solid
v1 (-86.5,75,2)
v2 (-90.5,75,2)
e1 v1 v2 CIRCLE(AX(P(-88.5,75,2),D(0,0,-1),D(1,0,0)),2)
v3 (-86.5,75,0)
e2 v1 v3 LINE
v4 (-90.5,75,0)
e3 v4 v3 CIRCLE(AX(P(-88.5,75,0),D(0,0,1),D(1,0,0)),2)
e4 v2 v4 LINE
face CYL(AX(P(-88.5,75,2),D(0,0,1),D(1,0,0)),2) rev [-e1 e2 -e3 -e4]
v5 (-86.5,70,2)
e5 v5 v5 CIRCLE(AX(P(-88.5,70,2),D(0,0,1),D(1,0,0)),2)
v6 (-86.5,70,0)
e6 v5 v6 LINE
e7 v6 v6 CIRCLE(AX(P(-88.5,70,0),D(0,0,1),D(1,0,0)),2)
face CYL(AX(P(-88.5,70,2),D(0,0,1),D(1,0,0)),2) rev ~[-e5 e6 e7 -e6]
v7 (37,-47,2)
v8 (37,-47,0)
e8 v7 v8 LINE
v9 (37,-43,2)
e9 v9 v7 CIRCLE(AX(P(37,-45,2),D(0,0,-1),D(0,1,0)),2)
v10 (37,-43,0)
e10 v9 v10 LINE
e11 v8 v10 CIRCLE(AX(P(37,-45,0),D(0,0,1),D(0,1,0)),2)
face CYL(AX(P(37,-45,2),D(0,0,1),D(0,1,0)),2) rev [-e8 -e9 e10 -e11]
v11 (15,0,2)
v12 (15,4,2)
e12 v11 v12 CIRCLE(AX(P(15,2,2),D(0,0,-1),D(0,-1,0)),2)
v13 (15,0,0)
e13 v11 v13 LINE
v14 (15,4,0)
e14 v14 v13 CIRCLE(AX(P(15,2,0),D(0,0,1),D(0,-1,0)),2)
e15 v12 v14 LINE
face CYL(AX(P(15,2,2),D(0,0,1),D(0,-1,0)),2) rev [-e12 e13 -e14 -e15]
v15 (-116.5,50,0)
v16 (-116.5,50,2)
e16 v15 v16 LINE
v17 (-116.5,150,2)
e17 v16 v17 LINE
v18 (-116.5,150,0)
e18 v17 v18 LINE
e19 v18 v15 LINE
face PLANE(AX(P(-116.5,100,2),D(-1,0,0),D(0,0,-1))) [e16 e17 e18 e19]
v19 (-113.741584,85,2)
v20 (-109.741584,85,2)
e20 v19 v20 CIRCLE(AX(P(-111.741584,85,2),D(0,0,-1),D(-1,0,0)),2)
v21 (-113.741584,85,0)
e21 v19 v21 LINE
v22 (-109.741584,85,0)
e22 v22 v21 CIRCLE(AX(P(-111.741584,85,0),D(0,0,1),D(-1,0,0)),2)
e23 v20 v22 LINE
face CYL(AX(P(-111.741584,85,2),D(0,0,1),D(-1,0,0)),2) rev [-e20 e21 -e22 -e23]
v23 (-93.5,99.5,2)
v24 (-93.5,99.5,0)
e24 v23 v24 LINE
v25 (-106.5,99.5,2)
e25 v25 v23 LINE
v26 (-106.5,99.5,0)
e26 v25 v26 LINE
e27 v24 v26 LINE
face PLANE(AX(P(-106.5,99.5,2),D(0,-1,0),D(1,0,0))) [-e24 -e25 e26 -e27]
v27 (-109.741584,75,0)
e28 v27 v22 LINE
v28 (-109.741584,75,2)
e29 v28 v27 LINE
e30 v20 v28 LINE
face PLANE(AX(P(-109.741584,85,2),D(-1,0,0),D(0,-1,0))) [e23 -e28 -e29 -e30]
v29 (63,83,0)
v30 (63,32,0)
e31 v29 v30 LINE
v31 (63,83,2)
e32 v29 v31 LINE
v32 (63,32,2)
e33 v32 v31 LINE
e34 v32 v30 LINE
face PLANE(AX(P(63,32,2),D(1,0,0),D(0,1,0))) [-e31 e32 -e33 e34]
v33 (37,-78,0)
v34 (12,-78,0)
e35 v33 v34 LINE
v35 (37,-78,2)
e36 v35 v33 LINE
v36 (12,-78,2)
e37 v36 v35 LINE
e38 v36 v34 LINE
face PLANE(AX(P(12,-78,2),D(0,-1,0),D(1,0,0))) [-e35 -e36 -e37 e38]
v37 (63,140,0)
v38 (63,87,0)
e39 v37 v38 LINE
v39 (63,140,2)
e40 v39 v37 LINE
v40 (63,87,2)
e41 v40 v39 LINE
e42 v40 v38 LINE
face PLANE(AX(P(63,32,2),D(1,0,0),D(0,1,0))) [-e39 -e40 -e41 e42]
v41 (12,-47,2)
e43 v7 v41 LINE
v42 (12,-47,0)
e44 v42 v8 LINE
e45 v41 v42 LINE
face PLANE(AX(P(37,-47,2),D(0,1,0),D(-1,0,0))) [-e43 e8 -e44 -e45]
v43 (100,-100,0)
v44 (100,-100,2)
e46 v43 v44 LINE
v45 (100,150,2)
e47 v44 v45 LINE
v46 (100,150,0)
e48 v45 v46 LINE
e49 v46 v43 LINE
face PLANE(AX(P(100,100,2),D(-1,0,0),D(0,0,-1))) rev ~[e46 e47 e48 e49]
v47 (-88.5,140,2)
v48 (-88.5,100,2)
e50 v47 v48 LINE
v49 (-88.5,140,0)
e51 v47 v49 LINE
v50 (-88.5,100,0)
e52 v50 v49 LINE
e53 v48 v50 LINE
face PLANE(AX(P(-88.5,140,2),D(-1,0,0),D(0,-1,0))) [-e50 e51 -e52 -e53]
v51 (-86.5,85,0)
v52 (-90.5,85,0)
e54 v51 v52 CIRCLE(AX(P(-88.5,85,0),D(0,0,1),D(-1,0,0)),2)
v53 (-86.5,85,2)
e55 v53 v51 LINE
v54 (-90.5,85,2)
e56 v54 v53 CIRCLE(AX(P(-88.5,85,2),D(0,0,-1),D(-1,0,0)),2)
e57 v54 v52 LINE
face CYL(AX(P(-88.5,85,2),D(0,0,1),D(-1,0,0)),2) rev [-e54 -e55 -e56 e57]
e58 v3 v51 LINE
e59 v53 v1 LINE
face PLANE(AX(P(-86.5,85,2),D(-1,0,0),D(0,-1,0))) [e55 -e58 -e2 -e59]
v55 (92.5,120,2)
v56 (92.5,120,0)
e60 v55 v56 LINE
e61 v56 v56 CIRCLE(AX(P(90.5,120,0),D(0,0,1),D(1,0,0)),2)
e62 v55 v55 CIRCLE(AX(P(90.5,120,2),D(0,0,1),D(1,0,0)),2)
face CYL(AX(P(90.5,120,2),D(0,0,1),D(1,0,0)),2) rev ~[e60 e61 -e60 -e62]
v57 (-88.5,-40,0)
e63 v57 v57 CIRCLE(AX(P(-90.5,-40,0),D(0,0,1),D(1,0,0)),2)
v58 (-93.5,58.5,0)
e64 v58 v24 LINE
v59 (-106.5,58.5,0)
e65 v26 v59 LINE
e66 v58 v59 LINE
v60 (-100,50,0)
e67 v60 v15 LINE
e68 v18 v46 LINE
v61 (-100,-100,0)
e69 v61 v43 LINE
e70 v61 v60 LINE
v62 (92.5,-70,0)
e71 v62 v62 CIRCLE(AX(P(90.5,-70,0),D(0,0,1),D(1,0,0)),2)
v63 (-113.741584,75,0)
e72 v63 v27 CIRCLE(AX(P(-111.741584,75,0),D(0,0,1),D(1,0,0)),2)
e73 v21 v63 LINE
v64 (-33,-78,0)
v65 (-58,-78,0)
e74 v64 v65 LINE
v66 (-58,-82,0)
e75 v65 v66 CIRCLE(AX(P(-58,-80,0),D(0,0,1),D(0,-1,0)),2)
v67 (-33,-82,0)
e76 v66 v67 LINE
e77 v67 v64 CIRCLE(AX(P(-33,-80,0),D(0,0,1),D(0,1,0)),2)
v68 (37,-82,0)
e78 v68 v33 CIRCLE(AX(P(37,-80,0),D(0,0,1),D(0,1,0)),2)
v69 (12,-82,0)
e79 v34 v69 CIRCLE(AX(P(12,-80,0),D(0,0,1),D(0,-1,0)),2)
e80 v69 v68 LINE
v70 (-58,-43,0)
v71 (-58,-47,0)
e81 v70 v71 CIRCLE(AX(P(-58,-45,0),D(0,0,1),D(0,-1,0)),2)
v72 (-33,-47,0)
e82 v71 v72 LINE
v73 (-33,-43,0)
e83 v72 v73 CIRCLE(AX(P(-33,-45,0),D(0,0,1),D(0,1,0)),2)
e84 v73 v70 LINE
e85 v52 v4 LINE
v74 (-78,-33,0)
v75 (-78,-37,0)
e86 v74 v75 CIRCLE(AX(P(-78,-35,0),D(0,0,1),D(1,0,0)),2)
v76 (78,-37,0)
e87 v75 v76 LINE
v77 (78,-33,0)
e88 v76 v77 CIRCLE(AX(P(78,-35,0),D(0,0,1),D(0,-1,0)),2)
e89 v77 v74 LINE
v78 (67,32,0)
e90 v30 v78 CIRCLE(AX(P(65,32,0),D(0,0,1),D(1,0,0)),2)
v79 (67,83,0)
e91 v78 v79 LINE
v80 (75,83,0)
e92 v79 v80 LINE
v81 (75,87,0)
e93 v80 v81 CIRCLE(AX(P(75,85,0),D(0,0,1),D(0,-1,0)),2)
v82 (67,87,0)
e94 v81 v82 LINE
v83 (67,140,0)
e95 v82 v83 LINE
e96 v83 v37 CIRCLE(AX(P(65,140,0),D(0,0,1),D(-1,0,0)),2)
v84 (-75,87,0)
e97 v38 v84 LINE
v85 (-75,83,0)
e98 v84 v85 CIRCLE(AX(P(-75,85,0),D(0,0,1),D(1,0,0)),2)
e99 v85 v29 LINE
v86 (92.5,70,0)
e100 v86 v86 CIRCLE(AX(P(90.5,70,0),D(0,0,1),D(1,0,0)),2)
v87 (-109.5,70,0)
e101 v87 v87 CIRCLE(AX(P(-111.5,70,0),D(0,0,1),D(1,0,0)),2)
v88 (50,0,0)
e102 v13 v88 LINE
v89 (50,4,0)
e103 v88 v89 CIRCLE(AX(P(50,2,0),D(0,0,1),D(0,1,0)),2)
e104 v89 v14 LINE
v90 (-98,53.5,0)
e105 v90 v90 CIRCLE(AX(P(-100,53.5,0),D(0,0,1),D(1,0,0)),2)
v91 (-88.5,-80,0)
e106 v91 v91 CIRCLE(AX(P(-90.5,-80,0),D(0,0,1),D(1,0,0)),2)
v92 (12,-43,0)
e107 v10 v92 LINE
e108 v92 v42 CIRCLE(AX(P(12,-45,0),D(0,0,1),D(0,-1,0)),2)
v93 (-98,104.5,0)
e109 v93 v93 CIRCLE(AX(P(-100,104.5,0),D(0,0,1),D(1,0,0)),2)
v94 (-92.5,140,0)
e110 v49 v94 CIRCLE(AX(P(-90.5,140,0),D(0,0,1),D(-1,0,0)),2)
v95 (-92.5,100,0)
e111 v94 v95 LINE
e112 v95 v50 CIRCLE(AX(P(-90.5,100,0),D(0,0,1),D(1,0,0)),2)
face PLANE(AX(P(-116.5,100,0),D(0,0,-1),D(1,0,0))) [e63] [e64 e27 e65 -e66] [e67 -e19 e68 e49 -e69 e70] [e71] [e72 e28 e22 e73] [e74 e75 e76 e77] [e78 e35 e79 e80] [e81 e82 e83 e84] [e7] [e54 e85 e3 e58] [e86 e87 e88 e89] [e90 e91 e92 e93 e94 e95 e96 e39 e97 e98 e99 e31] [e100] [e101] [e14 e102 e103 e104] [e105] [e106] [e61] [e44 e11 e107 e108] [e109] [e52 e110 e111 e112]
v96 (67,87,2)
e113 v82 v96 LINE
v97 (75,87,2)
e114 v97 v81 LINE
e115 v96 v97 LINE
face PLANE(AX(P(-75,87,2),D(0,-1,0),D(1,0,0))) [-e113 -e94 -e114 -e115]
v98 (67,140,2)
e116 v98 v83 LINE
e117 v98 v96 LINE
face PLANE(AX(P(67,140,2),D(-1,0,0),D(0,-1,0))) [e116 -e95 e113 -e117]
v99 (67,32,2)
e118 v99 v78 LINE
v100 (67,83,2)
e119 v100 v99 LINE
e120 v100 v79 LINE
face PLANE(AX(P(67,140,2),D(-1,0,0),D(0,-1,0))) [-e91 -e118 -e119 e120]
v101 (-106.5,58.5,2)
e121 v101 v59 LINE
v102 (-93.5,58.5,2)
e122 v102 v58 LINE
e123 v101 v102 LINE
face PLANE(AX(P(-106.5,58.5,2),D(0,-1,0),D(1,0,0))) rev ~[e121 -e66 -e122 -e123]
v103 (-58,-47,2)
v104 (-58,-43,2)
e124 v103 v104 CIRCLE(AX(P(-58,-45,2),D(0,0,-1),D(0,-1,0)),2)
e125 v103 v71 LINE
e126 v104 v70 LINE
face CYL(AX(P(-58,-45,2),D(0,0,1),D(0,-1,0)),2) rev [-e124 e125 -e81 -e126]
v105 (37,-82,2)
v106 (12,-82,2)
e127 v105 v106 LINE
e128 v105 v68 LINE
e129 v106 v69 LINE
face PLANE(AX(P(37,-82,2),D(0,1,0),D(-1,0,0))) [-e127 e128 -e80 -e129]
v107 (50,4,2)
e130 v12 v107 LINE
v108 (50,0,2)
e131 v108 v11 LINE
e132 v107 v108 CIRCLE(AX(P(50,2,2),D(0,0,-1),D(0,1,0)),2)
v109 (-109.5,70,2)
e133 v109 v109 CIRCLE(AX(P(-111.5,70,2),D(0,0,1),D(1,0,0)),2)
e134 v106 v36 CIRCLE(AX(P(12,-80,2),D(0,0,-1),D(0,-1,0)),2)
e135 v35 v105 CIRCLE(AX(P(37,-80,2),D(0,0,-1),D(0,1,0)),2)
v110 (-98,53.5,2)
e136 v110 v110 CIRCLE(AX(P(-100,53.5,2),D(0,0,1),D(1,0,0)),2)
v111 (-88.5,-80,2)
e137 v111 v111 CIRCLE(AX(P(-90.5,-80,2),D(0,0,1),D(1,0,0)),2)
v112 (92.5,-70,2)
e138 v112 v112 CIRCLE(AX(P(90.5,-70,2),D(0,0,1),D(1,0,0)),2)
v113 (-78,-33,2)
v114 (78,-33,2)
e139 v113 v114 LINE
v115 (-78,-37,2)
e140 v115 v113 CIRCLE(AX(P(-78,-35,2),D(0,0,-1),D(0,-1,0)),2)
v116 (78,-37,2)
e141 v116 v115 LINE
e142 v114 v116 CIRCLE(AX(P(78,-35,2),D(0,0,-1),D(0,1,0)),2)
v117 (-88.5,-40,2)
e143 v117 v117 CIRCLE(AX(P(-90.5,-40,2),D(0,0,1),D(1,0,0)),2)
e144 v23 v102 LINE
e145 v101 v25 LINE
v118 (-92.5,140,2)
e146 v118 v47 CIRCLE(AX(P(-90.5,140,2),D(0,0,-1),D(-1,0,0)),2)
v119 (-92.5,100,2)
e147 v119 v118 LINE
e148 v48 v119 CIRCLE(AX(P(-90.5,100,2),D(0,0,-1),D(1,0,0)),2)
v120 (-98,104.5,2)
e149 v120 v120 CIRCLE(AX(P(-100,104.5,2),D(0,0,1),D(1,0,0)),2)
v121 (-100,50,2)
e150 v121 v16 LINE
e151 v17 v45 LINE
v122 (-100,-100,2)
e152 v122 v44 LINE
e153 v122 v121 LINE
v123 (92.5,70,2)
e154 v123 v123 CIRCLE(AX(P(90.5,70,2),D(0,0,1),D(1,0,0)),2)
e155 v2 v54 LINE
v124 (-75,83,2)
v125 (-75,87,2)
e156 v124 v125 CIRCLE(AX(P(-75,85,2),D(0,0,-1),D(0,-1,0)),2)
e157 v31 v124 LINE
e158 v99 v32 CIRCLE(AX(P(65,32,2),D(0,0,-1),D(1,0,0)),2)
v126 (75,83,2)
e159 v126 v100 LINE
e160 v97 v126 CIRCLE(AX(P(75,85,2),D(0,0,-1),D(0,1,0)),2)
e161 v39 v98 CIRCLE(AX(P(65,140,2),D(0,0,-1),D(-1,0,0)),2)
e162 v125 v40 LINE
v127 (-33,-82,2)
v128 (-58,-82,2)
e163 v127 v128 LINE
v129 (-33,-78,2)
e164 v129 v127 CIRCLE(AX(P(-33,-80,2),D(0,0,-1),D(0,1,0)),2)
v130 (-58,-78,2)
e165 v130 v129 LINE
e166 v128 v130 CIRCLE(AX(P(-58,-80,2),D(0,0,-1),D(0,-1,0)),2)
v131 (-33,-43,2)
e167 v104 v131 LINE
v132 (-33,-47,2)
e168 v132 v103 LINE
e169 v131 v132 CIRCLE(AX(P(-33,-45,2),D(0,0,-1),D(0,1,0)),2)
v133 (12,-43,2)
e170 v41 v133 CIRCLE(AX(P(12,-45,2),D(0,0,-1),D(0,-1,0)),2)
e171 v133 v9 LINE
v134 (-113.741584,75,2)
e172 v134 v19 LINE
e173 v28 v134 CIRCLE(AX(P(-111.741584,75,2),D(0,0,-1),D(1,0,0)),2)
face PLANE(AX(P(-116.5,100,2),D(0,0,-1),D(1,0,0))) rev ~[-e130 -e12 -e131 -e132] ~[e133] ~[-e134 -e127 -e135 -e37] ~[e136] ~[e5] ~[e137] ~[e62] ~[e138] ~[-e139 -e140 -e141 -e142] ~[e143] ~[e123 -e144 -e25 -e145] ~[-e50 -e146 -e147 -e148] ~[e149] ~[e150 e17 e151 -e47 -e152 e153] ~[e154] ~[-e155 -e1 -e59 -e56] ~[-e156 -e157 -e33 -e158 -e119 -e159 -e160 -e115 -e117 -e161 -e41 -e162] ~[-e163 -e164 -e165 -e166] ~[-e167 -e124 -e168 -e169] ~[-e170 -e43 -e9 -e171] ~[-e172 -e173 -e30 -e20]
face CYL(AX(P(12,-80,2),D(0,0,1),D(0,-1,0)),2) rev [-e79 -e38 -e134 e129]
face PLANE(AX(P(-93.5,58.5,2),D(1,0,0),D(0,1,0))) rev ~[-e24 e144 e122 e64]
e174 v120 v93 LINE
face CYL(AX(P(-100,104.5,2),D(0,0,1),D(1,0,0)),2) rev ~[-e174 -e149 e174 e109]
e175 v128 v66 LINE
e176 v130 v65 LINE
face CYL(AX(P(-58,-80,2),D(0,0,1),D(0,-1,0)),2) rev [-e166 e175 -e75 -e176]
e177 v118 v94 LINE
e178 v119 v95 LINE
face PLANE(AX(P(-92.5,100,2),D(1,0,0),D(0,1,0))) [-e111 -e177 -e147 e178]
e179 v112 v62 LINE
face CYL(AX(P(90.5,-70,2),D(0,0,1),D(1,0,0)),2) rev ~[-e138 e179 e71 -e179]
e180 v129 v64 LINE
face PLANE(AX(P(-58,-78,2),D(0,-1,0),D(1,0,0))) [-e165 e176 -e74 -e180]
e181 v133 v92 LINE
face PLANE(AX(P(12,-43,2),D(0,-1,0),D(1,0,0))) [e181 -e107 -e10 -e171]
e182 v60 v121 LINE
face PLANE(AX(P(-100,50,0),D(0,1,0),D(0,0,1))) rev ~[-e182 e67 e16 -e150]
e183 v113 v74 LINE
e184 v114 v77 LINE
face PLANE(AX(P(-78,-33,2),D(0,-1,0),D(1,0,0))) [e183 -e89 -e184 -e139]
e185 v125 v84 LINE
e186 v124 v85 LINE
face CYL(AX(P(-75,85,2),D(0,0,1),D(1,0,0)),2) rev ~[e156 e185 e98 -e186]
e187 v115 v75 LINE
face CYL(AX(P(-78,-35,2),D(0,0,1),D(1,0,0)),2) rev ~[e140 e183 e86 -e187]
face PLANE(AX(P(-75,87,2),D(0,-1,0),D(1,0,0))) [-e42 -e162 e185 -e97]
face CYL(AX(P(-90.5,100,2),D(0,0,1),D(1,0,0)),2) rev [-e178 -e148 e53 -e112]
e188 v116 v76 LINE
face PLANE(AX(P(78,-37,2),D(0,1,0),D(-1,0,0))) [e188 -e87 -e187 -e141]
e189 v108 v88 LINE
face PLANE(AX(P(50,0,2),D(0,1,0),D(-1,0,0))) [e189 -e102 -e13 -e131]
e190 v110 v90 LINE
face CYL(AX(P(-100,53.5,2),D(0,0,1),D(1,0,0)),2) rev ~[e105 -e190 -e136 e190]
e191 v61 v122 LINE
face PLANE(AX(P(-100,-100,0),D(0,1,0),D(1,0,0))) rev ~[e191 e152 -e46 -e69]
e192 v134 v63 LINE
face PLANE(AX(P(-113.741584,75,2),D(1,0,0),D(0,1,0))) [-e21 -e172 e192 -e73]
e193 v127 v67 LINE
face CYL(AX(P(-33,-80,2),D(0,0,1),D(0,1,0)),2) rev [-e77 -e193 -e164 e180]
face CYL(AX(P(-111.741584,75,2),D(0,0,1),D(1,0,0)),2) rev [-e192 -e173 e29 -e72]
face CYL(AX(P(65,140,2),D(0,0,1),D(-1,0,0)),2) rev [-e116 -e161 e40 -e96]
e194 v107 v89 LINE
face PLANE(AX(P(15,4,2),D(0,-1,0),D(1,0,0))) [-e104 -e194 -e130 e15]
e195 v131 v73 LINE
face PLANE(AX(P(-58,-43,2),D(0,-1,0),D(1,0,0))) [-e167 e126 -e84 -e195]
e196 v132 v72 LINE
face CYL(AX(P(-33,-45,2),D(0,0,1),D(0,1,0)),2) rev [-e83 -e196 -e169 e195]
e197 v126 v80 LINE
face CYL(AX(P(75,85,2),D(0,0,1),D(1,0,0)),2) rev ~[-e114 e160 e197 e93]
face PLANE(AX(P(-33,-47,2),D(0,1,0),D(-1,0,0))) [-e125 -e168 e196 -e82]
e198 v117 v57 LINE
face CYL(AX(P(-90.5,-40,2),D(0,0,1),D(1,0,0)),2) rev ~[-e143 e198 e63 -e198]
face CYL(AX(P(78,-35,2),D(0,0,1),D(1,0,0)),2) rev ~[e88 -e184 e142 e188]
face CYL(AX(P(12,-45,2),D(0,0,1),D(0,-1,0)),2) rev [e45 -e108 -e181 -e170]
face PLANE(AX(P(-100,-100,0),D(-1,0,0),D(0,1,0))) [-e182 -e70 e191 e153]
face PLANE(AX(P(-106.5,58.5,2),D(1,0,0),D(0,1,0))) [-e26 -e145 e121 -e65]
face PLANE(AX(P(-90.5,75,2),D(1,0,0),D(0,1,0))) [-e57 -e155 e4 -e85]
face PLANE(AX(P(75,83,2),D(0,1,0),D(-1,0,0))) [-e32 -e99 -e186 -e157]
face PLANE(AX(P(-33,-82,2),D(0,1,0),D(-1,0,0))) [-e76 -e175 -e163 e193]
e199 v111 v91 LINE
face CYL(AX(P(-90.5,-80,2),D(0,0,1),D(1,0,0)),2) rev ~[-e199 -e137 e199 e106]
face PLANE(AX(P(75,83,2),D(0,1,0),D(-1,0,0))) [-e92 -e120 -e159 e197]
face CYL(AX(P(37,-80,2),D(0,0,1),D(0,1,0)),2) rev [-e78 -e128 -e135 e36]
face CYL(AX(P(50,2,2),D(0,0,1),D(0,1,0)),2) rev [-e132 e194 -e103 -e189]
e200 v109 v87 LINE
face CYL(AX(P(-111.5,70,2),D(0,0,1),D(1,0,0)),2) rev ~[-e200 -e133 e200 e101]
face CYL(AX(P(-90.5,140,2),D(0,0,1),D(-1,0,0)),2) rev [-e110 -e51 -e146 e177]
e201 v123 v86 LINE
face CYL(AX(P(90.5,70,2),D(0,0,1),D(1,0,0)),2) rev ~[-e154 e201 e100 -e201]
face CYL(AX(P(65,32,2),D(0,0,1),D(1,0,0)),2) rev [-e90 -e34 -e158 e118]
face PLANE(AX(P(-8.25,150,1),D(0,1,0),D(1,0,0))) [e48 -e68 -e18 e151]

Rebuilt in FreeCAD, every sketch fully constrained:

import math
import FreeCAD as App
import Part
import Sketcher
from FreeCAD import Vector
Q = App.Units.Quantity

doc = App.newDocument("Part")
body = doc.addObject("PartDesign::Body", "Body")

# Sketch on XY plane
sketch1 = doc.addObject("Sketcher::SketchObject", "Sketch")
body.addObject(sketch1)
sketch1.AttachmentSupport = (doc.XY_Plane, [""])
sketch1.MapMode = "FlatFace"
sketch1.addGeometry([
    Part.LineSegment(Vector(-100, 100, 0), Vector(-100, -100, 0)),
    Part.LineSegment(Vector(-100, -100, 0), Vector(100, -100, 0)),
    Part.LineSegment(Vector(100, -100, 0), Vector(100, 100, 0)),
    Part.LineSegment(Vector(100, 100, 0), Vector(-100, 100, 0)),
], False)
sketch1.addConstraint([
    Sketcher.Constraint("Coincident", 0, 2, 1, 1),
    Sketcher.Constraint("Coincident", 1, 2, 2, 1),
    Sketcher.Constraint("Coincident", 2, 2, 3, 1),
    Sketcher.Constraint("Coincident", 3, 2, 0, 1),
    Sketcher.Constraint("Vertical", 0),
    Sketcher.Constraint("Horizontal", 1),
    Sketcher.Constraint("Vertical", 2),
    Sketcher.Constraint("Horizontal", 3),
    Sketcher.Constraint("Symmetric", 0, 2, 2, 2, -1, 1),
    Sketcher.Constraint("Equal", 3, 0),
    Sketcher.Constraint("DistanceX", 1, 1, 1, 2, Q("200 mm")),
])
pad1 = doc.addObject("PartDesign::Pad", "Pad")
body.addObject(pad1)
pad1.Profile = sketch1
pad1.Length = 2

# Sketch on XY plane
sketch2 = doc.addObject("Sketcher::SketchObject", "Sketch001")
body.addObject(sketch2)
sketch2.AttachmentSupport = (doc.XY_Plane, [""])
sketch2.MapMode = "FlatFace"
sketch2.AttachmentOffset = App.Placement(Vector(0, 0, 2), App.Rotation())
sketch2.addGeometry([
    Part.Circle(Vector(90.5, 70, 0), Vector(0, 0, 1), 2),
    Part.Circle(Vector(90.5, -70, 0), Vector(0, 0, 1), 2),
], False)
sketch2.addConstraint([
    Sketcher.Constraint("Equal", 0, 1),
    Sketcher.Constraint("Symmetric", 0, 3, 1, 3, -1),
    Sketcher.Constraint("Diameter", 0, Q("4 mm")),
    Sketcher.Constraint("DistanceY", -1, 1, 0, 3, Q("70 mm")),
    Sketcher.Constraint("DistanceX", -1, 1, 0, 3, Q("90.5 mm")),
])
pocket1 = doc.addObject("PartDesign::Pocket", "Pocket")
body.addObject(pocket1)
pocket1.Profile = sketch2
pocket1.Length = 13

# Sketch on XY plane
sketch3 = doc.addObject("Sketcher::SketchObject", "Sketch002")
body.addObject(sketch3)
sketch3.AttachmentSupport = (doc.XY_Plane, [""])
sketch3.MapMode = "FlatFace"
sketch3.AttachmentOffset = App.Placement(Vector(0, 0, 2), App.Rotation())
sketch3.addGeometry([
    Part.Circle(Vector(-90.5, -40, 0), Vector(0, 0, 1), 2),
    Part.Circle(Vector(-90.5, -80, 0), Vector(0, 0, 1), 2),
], False)
sketch3.addConstraint([
    Sketcher.Constraint("Equal", 0, 1),
    Sketcher.Constraint("Vertical", 0, 3, 1, 3),
    Sketcher.Constraint("Diameter", 0, Q("4 mm")),
    Sketcher.Constraint("DistanceY", 0, 3, -1, 1, Q("40 mm")),
    Sketcher.Constraint("DistanceY", 1, 3, -1, 1, Q("80 mm")),
    Sketcher.Constraint("DistanceX", 0, 3, -1, 1, Q("90.5 mm")),
])
pocket2 = doc.addObject("PartDesign::Pocket", "Pocket001")
body.addObject(pocket2)
pocket2.Profile = sketch3
pocket2.Type = "ThroughAll"

# Sketch on XY plane
sketch4 = doc.addObject("Sketcher::SketchObject", "Sketch003")
body.addObject(sketch4)
sketch4.AttachmentSupport = (doc.XY_Plane, [""])
sketch4.MapMode = "FlatFace"
sketch4.AttachmentOffset = App.Placement(Vector(0, 0, 2), App.Rotation())
sketch4.addGeometry([
    Part.Circle(Vector(-50, -45, 0), Vector(0, 0, 1), 2),
    Part.Circle(Vector(-50, -80, 0), Vector(0, 0, 1), 2),
    Part.Circle(Vector(26.5, -45, 0), Vector(0, 0, 1), 2),
    Part.Circle(Vector(26.5, -80, 0), Vector(0, 0, 1), 2),
], False)
sketch4.addConstraint([
    Sketcher.Constraint("Equal", 0, 1),
    Sketcher.Constraint("Equal", 1, 2),
    Sketcher.Constraint("Equal", 2, 3),
    Sketcher.Constraint("Horizontal", 0, 3, 2, 3),
    Sketcher.Constraint("Horizontal", 1, 3, 3, 3),
    Sketcher.Constraint("Vertical", 0, 3, 1, 3),
    Sketcher.Constraint("Vertical", 2, 3, 3, 3),
    Sketcher.Constraint("Diameter", 0, Q("4 mm")),
    Sketcher.Constraint("DistanceX", 0, 3, -1, 1, Q("50 mm")),
    Sketcher.Constraint("DistanceY", 0, 3, -1, 1, Q("45 mm")),
    Sketcher.Constraint("DistanceY", 1, 3, -1, 1, Q("80 mm")),
    Sketcher.Constraint("DistanceX", -1, 1, 2, 3, Q("26.5 mm")),
])
pocket3 = doc.addObject("PartDesign::Pocket", "Pocket002")
body.addObject(pocket3)
pocket3.Profile = sketch4
pocket3.Length = 13

# Sketch on YZ plane
sketch5 = doc.addObject("Sketcher::SketchObject", "Sketch004")
body.addObject(sketch5)
sketch5.AttachmentSupport = (doc.YZ_Plane, [""])
sketch5.MapMode = "FlatFace"
sketch5.AttachmentOffset = App.Placement(Vector(0, 0, -100), App.Rotation())
sketch5.addGeometry([
    Part.LineSegment(Vector(100, 0, 0), Vector(50, 0, 0)),
    Part.LineSegment(Vector(50, 0, 0), Vector(50, 2, 0)),
    Part.LineSegment(Vector(50, 2, 0), Vector(100, 2, 0)),
    Part.LineSegment(Vector(100, 2, 0), Vector(100, 0, 0)),
], False)
sketch5.addConstraint([
    Sketcher.Constraint("Coincident", 0, 2, 1, 1),
    Sketcher.Constraint("Coincident", 1, 2, 2, 1),
    Sketcher.Constraint("Coincident", 2, 2, 3, 1),
    Sketcher.Constraint("Coincident", 3, 2, 0, 1),
    Sketcher.Constraint("Horizontal", 0),
    Sketcher.Constraint("Vertical", 1),
    Sketcher.Constraint("Horizontal", 2),
    Sketcher.Constraint("Vertical", 3),
    Sketcher.Constraint("PointOnObject", 0, 2, -1),
    Sketcher.Constraint("DistanceX", 0, 2, 0, 1, Q("50 mm")),
    Sketcher.Constraint("DistanceY", 1, 1, 1, 2, Q("2 mm")),
    Sketcher.Constraint("DistanceX", -1, 1, 0, 2, Q("50 mm")),
])
pad2 = doc.addObject("PartDesign::Pad", "Pad001")
body.addObject(pad2)
pad2.Profile = sketch5
pad2.Length = 16.5
pad2.Reversed = True

# Sketch on XY plane
sketch6 = doc.addObject("Sketcher::SketchObject", "Sketch005")
body.addObject(sketch6)
sketch6.AttachmentSupport = (doc.XY_Plane, [""])
sketch6.MapMode = "FlatFace"
sketch6.AttachmentOffset = App.Placement(Vector(0, 0, 2), App.Rotation())
sketch6.addGeometry([
    Part.Circle(Vector(-111.5, 70, 0), Vector(0, 0, 1), 2),  # 0
    Part.Circle(Vector(-88.5, 70, 0), Vector(0, 0, 1), 2),  # 1
    Part.LineSegment(Vector(-106.5, 73.5, 0), Vector(-106.5, 58.5, 0)),  # 2
    Part.LineSegment(Vector(-106.5, 58.5, 0), Vector(-93.5, 58.5, 0)),  # 3
    Part.LineSegment(Vector(-93.5, 58.5, 0), Vector(-93.5, 73.5, 0)),  # 4
    Part.LineSegment(Vector(-93.5, 73.5, 0), Vector(-106.5, 73.5, 0)),  # 5
], False)
sketch6.addConstraint([
    Sketcher.Constraint("Coincident", 2, 2, 3, 1),
    Sketcher.Constraint("Coincident", 3, 2, 4, 1),
    Sketcher.Constraint("Coincident", 4, 2, 5, 1),
    Sketcher.Constraint("Coincident", 5, 2, 2, 1),
    Sketcher.Constraint("Vertical", 2),
    Sketcher.Constraint("Horizontal", 3),
    Sketcher.Constraint("Vertical", 4),
    Sketcher.Constraint("Horizontal", 5),
    Sketcher.Constraint("Equal", 0, 1),
    Sketcher.Constraint("Horizontal", 0, 3, 1, 3),
    Sketcher.Constraint("Diameter", 0, Q("4 mm")),
    Sketcher.Constraint("DistanceX", 3, 1, 3, 2, Q("13 mm")),
    Sketcher.Constraint("DistanceY", 2, 2, 2, 1, Q("15 mm")),
    Sketcher.Constraint("DistanceY", -1, 1, 0, 3, Q("70 mm")),
    Sketcher.Constraint("DistanceX", 0, 3, 1, 3, Q("23 mm")),
    Sketcher.Constraint("DistanceX", 0, 3, 2, 2, Q("5 mm")),
    Sketcher.Constraint("DistanceX", 0, 3, -1, 1, Q("111.5 mm")),
    Sketcher.Constraint("DistanceY", -1, 1, 2, 2, Q("58.5 mm")),
])
pocket4 = doc.addObject("PartDesign::Pocket", "Pocket003")
body.addObject(pocket4)
pocket4.Profile = sketch6
pocket4.Type = "ThroughAll"

# Sketch on XY plane
sketch7 = doc.addObject("Sketcher::SketchObject", "Sketch006")
body.addObject(sketch7)
sketch7.AttachmentSupport = (doc.XY_Plane, [""])
sketch7.MapMode = "FlatFace"
sketch7.AttachmentOffset = App.Placement(Vector(0, 0, 2), App.Rotation())
sketch7.addGeometry([
    Part.Circle(Vector(75, 85, 0), Vector(0, 0, 1), 2),
    Part.Circle(Vector(78, -35, 0), Vector(0, 0, 1), 2),
    Part.Circle(Vector(-78, -35, 0), Vector(0, 0, 1), 2),
    Part.Circle(Vector(-75, 85, 0), Vector(0, 0, 1), 2),
], False)
sketch7.addConstraint([
    Sketcher.Constraint("Equal", 0, 1),
    Sketcher.Constraint("Equal", 1, 2),
    Sketcher.Constraint("Equal", 2, 3),
    Sketcher.Constraint("Symmetric", 1, 3, 2, 3, -2),
    Sketcher.Constraint("Symmetric", 0, 3, 3, 3, -2),
    Sketcher.Constraint("Diameter", 0, Q("4 mm")),
    Sketcher.Constraint("DistanceX", -1, 1, 0, 3, Q("75 mm")),
    Sketcher.Constraint("DistanceY", -1, 1, 0, 3, Q("85 mm")),
    Sketcher.Constraint("DistanceX", -1, 1, 1, 3, Q("78 mm")),
    Sketcher.Constraint("DistanceY", 1, 3, -1, 1, Q("35 mm")),
])
pocket5 = doc.addObject("PartDesign::Pocket", "Pocket004")
body.addObject(pocket5)
pocket5.Profile = sketch7
pocket5.Type = "ThroughAll"

# Sketch on XY plane
sketch8 = doc.addObject("Sketcher::SketchObject", "Sketch007")
body.addObject(sketch8)
sketch8.AttachmentSupport = (doc.XY_Plane, [""])
sketch8.MapMode = "FlatFace"
sketch8.AttachmentOffset = App.Placement(Vector(0, 0, 2), App.Rotation())
sketch8.addGeometry([
    Part.LineSegment(Vector(67, 32, 0), Vector(67, 95, 0)),
    Part.ArcOfCircle(Part.Circle(Vector(65, 95, 0), Vector(0, 0, 1), 2), math.radians(0), math.radians(180)),
    Part.LineSegment(Vector(63, 95, 0), Vector(63, 32, 0)),
    Part.ArcOfCircle(Part.Circle(Vector(65, 32, 0), Vector(0, 0, 1), 2), math.radians(180), math.radians(360)),
], False)
sketch8.addConstraint([
    Sketcher.Constraint("Tangent", 0, 2, 1, 1),
    Sketcher.Constraint("Tangent", 1, 2, 2, 1),
    Sketcher.Constraint("Tangent", 2, 2, 3, 1),
    Sketcher.Constraint("Tangent", 3, 2, 0, 1),
    Sketcher.Constraint("Vertical", 0),
    Sketcher.Constraint("Vertical", 2),
    Sketcher.Constraint("Radius", 1, Q("2 mm")),
    Sketcher.Constraint("DistanceY", 0, 1, 0, 2, Q("63 mm")),
    Sketcher.Constraint("DistanceX", -1, 1, 1, 3, Q("65 mm")),
    Sketcher.Constraint("DistanceY", -1, 1, 1, 3, Q("95 mm")),
])
pocket6 = doc.addObject("PartDesign::Pocket", "Pocket005")
body.addObject(pocket6)
pocket6.Profile = sketch8
pocket6.Length = 10

# Sketch on XZ plane
sketch9 = doc.addObject("Sketcher::SketchObject", "Sketch008")
body.addObject(sketch9)
sketch9.AttachmentSupport = (doc.XZ_Plane, [""])
sketch9.MapMode = "FlatFace"
sketch9.AttachmentOffset = App.Placement(Vector(0, 0, -100), App.Rotation())
sketch9.addGeometry([
    Part.LineSegment(Vector(-116.5, 0, 0), Vector(-116.5, 2, 0)),
    Part.LineSegment(Vector(-116.5, 2, 0), Vector(100, 2, 0)),
    Part.LineSegment(Vector(100, 2, 0), Vector(100, 0, 0)),
    Part.LineSegment(Vector(100, 0, 0), Vector(-116.5, 0, 0)),
], False)
sketch9.addConstraint([
    Sketcher.Constraint("Coincident", 0, 2, 1, 1),
    Sketcher.Constraint("Coincident", 1, 2, 2, 1),
    Sketcher.Constraint("Coincident", 2, 2, 3, 1),
    Sketcher.Constraint("Coincident", 3, 2, 0, 1),
    Sketcher.Constraint("Vertical", 0),
    Sketcher.Constraint("Horizontal", 1),
    Sketcher.Constraint("Vertical", 2),
    Sketcher.Constraint("Horizontal", 3),
    Sketcher.Constraint("PointOnObject", 2, 2, -1),
    Sketcher.Constraint("DistanceY", 0, 1, 0, 2, Q("2 mm")),
    Sketcher.Constraint("DistanceX", 1, 1, 1, 2, Q("216.5 mm")),
    Sketcher.Constraint("DistanceX", -1, 1, 1, 2, Q("100 mm")),
])
pad3 = doc.addObject("PartDesign::Pad", "Pad002")
body.addObject(pad3)
pad3.Profile = sketch9
pad3.Length = 50
pad3.Reversed = True

# Sketch on XY plane
sketch10 = doc.addObject("Sketcher::SketchObject", "Sketch009")
body.addObject(sketch10)
sketch10.AttachmentSupport = (doc.XY_Plane, [""])
sketch10.MapMode = "FlatFace"
sketch10.AttachmentOffset = App.Placement(Vector(0, 0, 2), App.Rotation())
sketch10.addGeometry([
    Part.LineSegment(Vector(63, 140, 0), Vector(63, 90.5, 0)),
    Part.ArcOfCircle(Part.Circle(Vector(65, 90.5, 0), Vector(0, 0, 1), 2), math.radians(180), math.radians(360)),
    Part.LineSegment(Vector(67, 90.5, 0), Vector(67, 140, 0)),
    Part.ArcOfCircle(Part.Circle(Vector(65, 140, 0), Vector(0, 0, 1), 2), math.radians(0), math.radians(180)),
], False)
sketch10.addConstraint([
    Sketcher.Constraint("Tangent", 0, 2, 1, 1),
    Sketcher.Constraint("Tangent", 1, 2, 2, 1),
    Sketcher.Constraint("Tangent", 2, 2, 3, 1),
    Sketcher.Constraint("Tangent", 3, 2, 0, 1),
    Sketcher.Constraint("Vertical", 0),
    Sketcher.Constraint("Vertical", 2),
    Sketcher.Constraint("Radius", 1, Q("2 mm")),
    Sketcher.Constraint("DistanceX", -1, 1, 1, 3, Q("65 mm")),
    Sketcher.Constraint("DistanceY", -1, 1, 3, 3, Q("140 mm")),
    Sketcher.Constraint("DistanceY", 0, 2, 0, 1, Q("49.520425 mm")),
])
pocket7 = doc.addObject("PartDesign::Pocket", "Pocket006")
body.addObject(pocket7)
pocket7.Profile = sketch10
pocket7.Length = 10

# Sketch on XY plane
sketch11 = doc.addObject("Sketcher::SketchObject", "Sketch010")
body.addObject(sketch11)
sketch11.AttachmentSupport = (doc.XY_Plane, [""])
sketch11.MapMode = "FlatFace"
sketch11.AttachmentOffset = App.Placement(Vector(0, 0, 2), App.Rotation())
sketch11.addGeometry([
    Part.LineSegment(Vector(78, -33, 0), Vector(-78, -33, 0)),
    Part.ArcOfCircle(Part.Circle(Vector(-78, -35, 0), Vector(0, 0, 1), 2), math.radians(90), math.radians(270)),
    Part.LineSegment(Vector(-78, -37, 0), Vector(78, -37, 0)),
    Part.ArcOfCircle(Part.Circle(Vector(78, -35, 0), Vector(0, 0, 1), 2), math.radians(-90), math.radians(90)),
], False)
sketch11.addConstraint([
    Sketcher.Constraint("Tangent", 0, 2, 1, 1),
    Sketcher.Constraint("Tangent", 1, 2, 2, 1),
    Sketcher.Constraint("Tangent", 2, 2, 3, 1),
    Sketcher.Constraint("Tangent", 3, 2, 0, 1),
    Sketcher.Constraint("Horizontal", 0),
    Sketcher.Constraint("Horizontal", 2),
    Sketcher.Constraint("Radius", 1, Q("2 mm")),
    Sketcher.Constraint("DistanceX", 0, 2, 0, 1, Q("156 mm")),
    Sketcher.Constraint("DistanceX", 1, 3, -1, 1, Q("78 mm")),
    Sketcher.Constraint("DistanceY", 1, 3, -1, 1, Q("35 mm")),
])
pocket8 = doc.addObject("PartDesign::Pocket", "Pocket007")
body.addObject(pocket8)
pocket8.Profile = sketch11
pocket8.Length = 10

# Sketch on XY plane
sketch12 = doc.addObject("Sketcher::SketchObject", "Sketch011")
body.addObject(sketch12)
sketch12.AttachmentSupport = (doc.XY_Plane, [""])
sketch12.MapMode = "FlatFace"
sketch12.AttachmentOffset = App.Placement(Vector(0, 0, 2), App.Rotation())
sketch12.addGeometry([
    Part.LineSegment(Vector(75, 87, 0), Vector(-75, 87, 0)),
    Part.ArcOfCircle(Part.Circle(Vector(-75, 85, 0), Vector(0, 0, 1), 2), math.radians(90), math.radians(270)),
    Part.LineSegment(Vector(-75, 83, 0), Vector(75, 83, 0)),
    Part.ArcOfCircle(Part.Circle(Vector(75, 85, 0), Vector(0, 0, 1), 2), math.radians(-90), math.radians(90)),
], False)
sketch12.addConstraint([
    Sketcher.Constraint("Tangent", 0, 2, 1, 1),
    Sketcher.Constraint("Tangent", 1, 2, 2, 1),
    Sketcher.Constraint("Tangent", 2, 2, 3, 1),
    Sketcher.Constraint("Tangent", 3, 2, 0, 1),
    Sketcher.Constraint("Horizontal", 0),
    Sketcher.Constraint("Horizontal", 2),
    Sketcher.Constraint("Radius", 1, Q("2 mm")),
    Sketcher.Constraint("DistanceX", 0, 2, 0, 1, Q("150 mm")),
    Sketcher.Constraint("DistanceX", 1, 3, -1, 1, Q("75 mm")),
    Sketcher.Constraint("DistanceY", -1, 1, 1, 3, Q("85 mm")),
])
pocket9 = doc.addObject("PartDesign::Pocket", "Pocket008")
body.addObject(pocket9)
pocket9.Profile = sketch12
pocket9.Length = 10

# Sketch on XY plane
sketch13 = doc.addObject("Sketcher::SketchObject", "Sketch012")
body.addObject(sketch13)
sketch13.AttachmentSupport = (doc.XY_Plane, [""])
sketch13.MapMode = "FlatFace"
sketch13.AttachmentOffset = App.Placement(Vector(0, 0, 2), App.Rotation())
sketch13.addGeometry(Part.Circle(Vector(90.5, 120, 0), Vector(0, 0, 1), 2), False)
sketch13.addConstraint([
    Sketcher.Constraint("Diameter", 0, Q("4 mm")),
    Sketcher.Constraint("DistanceY", -1, 1, 0, 3, Q("120 mm")),
    Sketcher.Constraint("DistanceX", -1, 1, 0, 3, Q("90.5 mm")),
])
pocket10 = doc.addObject("PartDesign::Pocket", "Pocket009")
body.addObject(pocket10)
pocket10.Profile = sketch13
pocket10.Length = 10

# Sketch on XY plane
sketch14 = doc.addObject("Sketcher::SketchObject", "Sketch013")
body.addObject(sketch14)
sketch14.AttachmentSupport = (doc.XY_Plane, [""])
sketch14.MapMode = "FlatFace"
sketch14.AttachmentOffset = App.Placement(Vector(0, 0, 2), App.Rotation())
sketch14.addGeometry(Part.Circle(Vector(-90.5, 120, 0), Vector(0, 0, 1), 2), False)
sketch14.addConstraint([
    Sketcher.Constraint("Diameter", 0, Q("4 mm")),
    Sketcher.Constraint("DistanceY", -1, 1, 0, 3, Q("120 mm")),
    Sketcher.Constraint("DistanceX", 0, 3, -1, 1, Q("90.5 mm")),
])
pocket11 = doc.addObject("PartDesign::Pocket", "Pocket010")
body.addObject(pocket11)
pocket11.Profile = sketch14
pocket11.Length = 10

# Sketch on XY plane
sketch15 = doc.addObject("Sketcher::SketchObject", "Sketch014")
body.addObject(sketch15)
sketch15.AttachmentSupport = (doc.XY_Plane, [""])
sketch15.MapMode = "FlatFace"
sketch15.AttachmentOffset = App.Placement(Vector(0, 0, 2), App.Rotation())
sketch15.addGeometry([
    Part.LineSegment(Vector(50, 4, 0), Vector(15, 4, 0)),
    Part.ArcOfCircle(Part.Circle(Vector(15, 2, 0), Vector(0, 0, 1), 2), math.radians(90), math.radians(270)),
    Part.LineSegment(Vector(15, 0, 0), Vector(50, 0, 0)),
    Part.ArcOfCircle(Part.Circle(Vector(50, 2, 0), Vector(0, 0, 1), 2), math.radians(-90), math.radians(90)),
], False)
sketch15.addConstraint([
    Sketcher.Constraint("Tangent", 0, 2, 1, 1),
    Sketcher.Constraint("Tangent", 1, 2, 2, 1),
    Sketcher.Constraint("Tangent", 2, 2, 3, 1),
    Sketcher.Constraint("Tangent", 3, 2, 0, 1),
    Sketcher.Constraint("Horizontal", 0),
    Sketcher.Constraint("Horizontal", 2),
    Sketcher.Constraint("PointOnObject", 1, 2, -1),
    Sketcher.Constraint("Radius", 1, Q("2 mm")),
    Sketcher.Constraint("DistanceX", 0, 2, 0, 1, Q("35 mm")),
    Sketcher.Constraint("DistanceX", -1, 1, 1, 3, Q("15 mm")),
])
pocket12 = doc.addObject("PartDesign::Pocket", "Pocket011")
body.addObject(pocket12)
pocket12.Profile = sketch15
pocket12.Length = 10

# Sketch on XY plane
sketch16 = doc.addObject("Sketcher::SketchObject", "Sketch015")
body.addObject(sketch16)
sketch16.AttachmentSupport = (doc.XY_Plane, [""])
sketch16.MapMode = "FlatFace"
sketch16.AttachmentOffset = App.Placement(Vector(0, 0, 2), App.Rotation())
sketch16.addGeometry([
    Part.LineSegment(Vector(-33, -43, 0), Vector(-58, -43, 0)),  # 0
    Part.ArcOfCircle(Part.Circle(Vector(-58, -45, 0), Vector(0, 0, 1), 2), math.radians(90), math.radians(270)),  # 1
    Part.LineSegment(Vector(-58, -47, 0), Vector(-33, -47, 0)),  # 2
    Part.ArcOfCircle(Part.Circle(Vector(-33, -45, 0), Vector(0, 0, 1), 2), math.radians(-90), math.radians(90)),  # 3
    Part.LineSegment(Vector(-33, -78, 0), Vector(-58, -78, 0)),  # 4
    Part.ArcOfCircle(Part.Circle(Vector(-58, -80, 0), Vector(0, 0, 1), 2), math.radians(90), math.radians(270)),  # 5
    Part.LineSegment(Vector(-58, -82, 0), Vector(-33, -82, 0)),  # 6
    Part.ArcOfCircle(Part.Circle(Vector(-33, -80, 0), Vector(0, 0, 1), 2), math.radians(-90), math.radians(90)),  # 7
    Part.LineSegment(Vector(37, -43, 0), Vector(12, -43, 0)),  # 8
    Part.ArcOfCircle(Part.Circle(Vector(12, -45, 0), Vector(0, 0, 1), 2), math.radians(90), math.radians(270)),  # 9
    Part.LineSegment(Vector(12, -47, 0), Vector(37, -47, 0)),  # 10
    Part.ArcOfCircle(Part.Circle(Vector(37, -45, 0), Vector(0, 0, 1), 2), math.radians(-90), math.radians(90)),  # 11
    Part.LineSegment(Vector(37, -78, 0), Vector(12, -78, 0)),  # 12
    Part.ArcOfCircle(Part.Circle(Vector(12, -80, 0), Vector(0, 0, 1), 2), math.radians(90), math.radians(270)),  # 13
    Part.LineSegment(Vector(12, -82, 0), Vector(37, -82, 0)),  # 14
    Part.ArcOfCircle(Part.Circle(Vector(37, -80, 0), Vector(0, 0, 1), 2), math.radians(-90), math.radians(90)),  # 15
], False)
sketch16.addConstraint([
    Sketcher.Constraint("Tangent", 0, 2, 1, 1),
    Sketcher.Constraint("Tangent", 1, 2, 2, 1),
    Sketcher.Constraint("Tangent", 2, 2, 3, 1),
    Sketcher.Constraint("Tangent", 3, 2, 0, 1),
    Sketcher.Constraint("Tangent", 4, 2, 5, 1),
    Sketcher.Constraint("Tangent", 5, 2, 6, 1),
    Sketcher.Constraint("Tangent", 6, 2, 7, 1),
    Sketcher.Constraint("Tangent", 7, 2, 4, 1),
    Sketcher.Constraint("Tangent", 8, 2, 9, 1),
    Sketcher.Constraint("Tangent", 9, 2, 10, 1),
    Sketcher.Constraint("Tangent", 10, 2, 11, 1),
    Sketcher.Constraint("Tangent", 11, 2, 8, 1),
    Sketcher.Constraint("Tangent", 12, 2, 13, 1),
    Sketcher.Constraint("Tangent", 13, 2, 14, 1),
    Sketcher.Constraint("Tangent", 14, 2, 15, 1),
    Sketcher.Constraint("Tangent", 15, 2, 12, 1),
    Sketcher.Constraint("Horizontal", 0),
    Sketcher.Constraint("Horizontal", 2),
    Sketcher.Constraint("Horizontal", 4),
    Sketcher.Constraint("Horizontal", 6),
    Sketcher.Constraint("Horizontal", 8),
    Sketcher.Constraint("Horizontal", 10),
    Sketcher.Constraint("Horizontal", 12),
    Sketcher.Constraint("Horizontal", 14),
    Sketcher.Constraint("Equal", 3, 5),
    Sketcher.Constraint("Equal", 7, 9),
    Sketcher.Constraint("Equal", 11, 13),
    Sketcher.Constraint("Horizontal", 3, 3, 9, 3),
    Sketcher.Constraint("Horizontal", 7, 3, 13, 3),
    Sketcher.Constraint("Vertical", 1, 3, 5, 3),
    Sketcher.Constraint("Vertical", 3, 3, 7, 3),
    Sketcher.Constraint("Vertical", 9, 3, 13, 3),
    Sketcher.Constraint("Vertical", 11, 3, 15, 3),
    Sketcher.Constraint("Equal", 6, 8),
    Sketcher.Constraint("Radius", 1, Q("2 mm")),
    Sketcher.Constraint("DistanceX", 0, 2, 0, 1, Q("25 mm")),
    Sketcher.Constraint("DistanceX", 1, 3, -1, 1, Q("58 mm")),
    Sketcher.Constraint("DistanceY", 1, 3, -1, 1, Q("45 mm")),
    Sketcher.Constraint("DistanceY", 5, 3, -1, 1, Q("80 mm")),
    Sketcher.Constraint("DistanceX", -1, 1, 9, 3, Q("12 mm")),
])
pocket13 = doc.addObject("PartDesign::Pocket", "Pocket012")
body.addObject(pocket13)
pocket13.Profile = sketch16
pocket13.Length = 10

# Sketch on XY plane
sketch17 = doc.addObject("Sketcher::SketchObject", "Sketch016")
body.addObject(sketch17)
sketch17.AttachmentSupport = (doc.XY_Plane, [""])
sketch17.MapMode = "FlatFace"
sketch17.AttachmentOffset = App.Placement(Vector(0, 0, 2), App.Rotation())
sketch17.addGeometry([
    Part.LineSegment(Vector(-88.5, 100, 0), Vector(-88.5, 140, 0)),
    Part.ArcOfCircle(Part.Circle(Vector(-90.5, 140, 0), Vector(0, 0, 1), 2), math.radians(0), math.radians(180)),
    Part.LineSegment(Vector(-92.5, 140, 0), Vector(-92.5, 100, 0)),
    Part.ArcOfCircle(Part.Circle(Vector(-90.5, 100, 0), Vector(0, 0, 1), 2), math.radians(180), math.radians(360)),
], False)
sketch17.addConstraint([
    Sketcher.Constraint("Tangent", 0, 2, 1, 1),
    Sketcher.Constraint("Tangent", 1, 2, 2, 1),
    Sketcher.Constraint("Tangent", 2, 2, 3, 1),
    Sketcher.Constraint("Tangent", 3, 2, 0, 1),
    Sketcher.Constraint("Vertical", 0),
    Sketcher.Constraint("Vertical", 2),
    Sketcher.Constraint("Radius", 1, Q("2 mm")),
    Sketcher.Constraint("DistanceY", 0, 1, 0, 2, Q("40 mm")),
    Sketcher.Constraint("DistanceY", -1, 1, 1, 3, Q("140 mm")),
    Sketcher.Constraint("DistanceX", 1, 3, -1, 1, Q("90.5 mm")),
])
pocket14 = doc.addObject("PartDesign::Pocket", "Pocket013")
body.addObject(pocket14)
pocket14.Profile = sketch17
pocket14.Length = 10

# Sketch on XY plane
sketch18 = doc.addObject("Sketcher::SketchObject", "Sketch017")
body.addObject(sketch18)
sketch18.AttachmentSupport = (doc.XY_Plane, [""])
sketch18.MapMode = "FlatFace"
sketch18.AttachmentOffset = App.Placement(Vector(0, 0, 2), App.Rotation())
sketch18.addGeometry([
    Part.Circle(Vector(-100, 53.5, 0), Vector(0, 0, 1), 2),
    Part.Circle(Vector(-100, 104.5, 0), Vector(0, 0, 1), 2),
], False)
sketch18.addConstraint([
    Sketcher.Constraint("Equal", 0, 1),
    Sketcher.Constraint("Vertical", 0, 3, 1, 3),
    Sketcher.Constraint("Diameter", 0, Q("4 mm")),
    Sketcher.Constraint("DistanceX", 0, 3, -1, 1, Q("100 mm")),
    Sketcher.Constraint("DistanceY", 0, 3, 1, 3, Q("51 mm")),
    Sketcher.Constraint("DistanceY", -1, 1, 0, 3, Q("53.5 mm")),
])
pocket15 = doc.addObject("PartDesign::Pocket", "Pocket014")
body.addObject(pocket15)
pocket15.Profile = sketch18
pocket15.Length = 10

# Sketch on XY plane
sketch19 = doc.addObject("Sketcher::SketchObject", "Sketch018")
body.addObject(sketch19)
sketch19.AttachmentSupport = (doc.XY_Plane, [""])
sketch19.MapMode = "FlatFace"
sketch19.AttachmentOffset = App.Placement(Vector(0, 0, 2), App.Rotation())
sketch19.addGeometry([
    Part.LineSegment(Vector(-106, 100, 0), Vector(-106, 74, 0)),
    Part.LineSegment(Vector(-106, 74, 0), Vector(-94, 74, 0)),
    Part.LineSegment(Vector(-94, 74, 0), Vector(-94, 100, 0)),
    Part.LineSegment(Vector(-94, 100, 0), Vector(-106, 100, 0)),
], False)
sketch19.addConstraint([
    Sketcher.Constraint("Coincident", 0, 2, 1, 1),
    Sketcher.Constraint("Coincident", 1, 2, 2, 1),
    Sketcher.Constraint("Coincident", 2, 2, 3, 1),
    Sketcher.Constraint("Coincident", 3, 2, 0, 1),
    Sketcher.Constraint("Vertical", 0),
    Sketcher.Constraint("Horizontal", 1),
    Sketcher.Constraint("Vertical", 2),
    Sketcher.Constraint("Horizontal", 3),
    Sketcher.Constraint("DistanceX", 1, 1, 1, 2, Q("13 mm")),
    Sketcher.Constraint("DistanceY", 0, 2, 0, 1, Q("26 mm")),
    Sketcher.Constraint("DistanceX", 0, 2, -1, 1, Q("106.5 mm")),
    Sketcher.Constraint("DistanceY", -1, 1, 0, 2, Q("73.5 mm")),
])
pocket16 = doc.addObject("PartDesign::Pocket", "Pocket015")
body.addObject(pocket16)
pocket16.Profile = sketch19
pocket16.Length = 10

# Sketch on XY plane
sketch20 = doc.addObject("Sketcher::SketchObject", "Sketch019")
body.addObject(sketch20)
sketch20.AttachmentSupport = (doc.XY_Plane, [""])
sketch20.MapMode = "FlatFace"
sketch20.AttachmentOffset = App.Placement(Vector(0, 0, 2), App.Rotation())
sketch20.addGeometry([
    Part.LineSegment(Vector(-90.5, 85, 0), Vector(-90.5, 75, 0)),  # 0
    Part.ArcOfCircle(Part.Circle(Vector(-88.5, 75, 0), Vector(0, 0, 1), 2), math.radians(180), math.radians(360)),  # 1
    Part.LineSegment(Vector(-86.5, 75, 0), Vector(-86.5, 85, 0)),  # 2
    Part.ArcOfCircle(Part.Circle(Vector(-88.5, 85, 0), Vector(0, 0, 1), 2), math.radians(0), math.radians(180)),  # 3
    Part.LineSegment(Vector(-113.7, 85, 0), Vector(-113.7, 75, 0)),  # 4
    Part.ArcOfCircle(Part.Circle(Vector(-111.7, 75, 0), Vector(0, 0, 1), 2), math.radians(180), math.radians(360)),  # 5
    Part.LineSegment(Vector(-109.7, 75, 0), Vector(-109.7, 85, 0)),  # 6
    Part.ArcOfCircle(Part.Circle(Vector(-111.7, 85, 0), Vector(0, 0, 1), 2), math.radians(0), math.radians(180)),  # 7
], False)
sketch20.addConstraint([
    Sketcher.Constraint("Tangent", 0, 2, 1, 1),
    Sketcher.Constraint("Tangent", 1, 2, 2, 1),
    Sketcher.Constraint("Tangent", 2, 2, 3, 1),
    Sketcher.Constraint("Tangent", 3, 2, 0, 1),
    Sketcher.Constraint("Tangent", 4, 2, 5, 1),
    Sketcher.Constraint("Tangent", 5, 2, 6, 1),
    Sketcher.Constraint("Tangent", 6, 2, 7, 1),
    Sketcher.Constraint("Tangent", 7, 2, 4, 1),
    Sketcher.Constraint("Vertical", 0),
    Sketcher.Constraint("Vertical", 2),
    Sketcher.Constraint("Vertical", 4),
    Sketcher.Constraint("Vertical", 6),
    Sketcher.Constraint("Equal", 3, 5),
    Sketcher.Constraint("Horizontal", 1, 3, 5, 3),
    Sketcher.Constraint("Horizontal", 3, 3, 7, 3),
    Sketcher.Constraint("Radius", 1, Q("2 mm")),
    Sketcher.Constraint("DistanceY", 0, 2, 0, 1, Q("10 mm")),
    Sketcher.Constraint("DistanceY", -1, 1, 1, 3, Q("75 mm")),
    Sketcher.Constraint("DistanceX", 1, 3, -1, 1, Q("88.5 mm")),
    Sketcher.Constraint("DistanceX", 5, 3, -1, 1, Q("111.741584 mm")),
])
pocket17 = doc.addObject("PartDesign::Pocket", "Pocket016")
body.addObject(pocket17)
pocket17.Profile = sketch20
pocket17.Length = 10

doc.recompute()
